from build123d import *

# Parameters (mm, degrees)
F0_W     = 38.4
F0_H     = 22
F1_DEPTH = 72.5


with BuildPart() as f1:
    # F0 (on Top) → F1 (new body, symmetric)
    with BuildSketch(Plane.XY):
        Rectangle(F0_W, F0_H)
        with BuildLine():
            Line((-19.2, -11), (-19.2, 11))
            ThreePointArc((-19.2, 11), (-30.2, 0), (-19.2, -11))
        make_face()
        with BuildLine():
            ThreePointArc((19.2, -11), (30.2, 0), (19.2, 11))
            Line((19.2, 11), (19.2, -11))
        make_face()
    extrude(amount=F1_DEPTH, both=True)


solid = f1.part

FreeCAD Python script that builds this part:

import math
import FreeCAD as App
import Part
import Sketcher
from FreeCAD import Vector

doc = App.newDocument("Part")
body = doc.addObject("PartDesign::Body", "Body")

# Sketch on XY plane
sketch1 = body.newObject("Sketcher::SketchObject", "Sketch")
sketch1.AttachmentSupport = (doc.getObject("XY_Plane"), [""])
sketch1.MapMode = "FlatFace"
sketch1.addGeometry(Part.LineSegment(Vector(-19.2, -11, 0), Vector(19.2, -11, 0)), False)
sketch1.addGeometry(Part.ArcOfCircle(Part.Circle(Vector(19.2, 0, 0), Vector(0, 0, 1), 11), math.radians(-90), math.radians(90)), False)
sketch1.addGeometry(Part.LineSegment(Vector(19.2, 11, 0), Vector(-19.2, 11, 0)), False)
sketch1.addGeometry(Part.ArcOfCircle(Part.Circle(Vector(-19.2, 0, 0), Vector(0, 0, 1), 11), math.radians(90), math.radians(270)), False)
sketch1.addConstraint(Sketcher.Constraint("Tangent", 0, 2, 1, 1))
sketch1.addConstraint(Sketcher.Constraint("Tangent", 1, 2, 2, 1))
sketch1.addConstraint(Sketcher.Constraint("Tangent", 2, 2, 3, 1))
sketch1.addConstraint(Sketcher.Constraint("Tangent", 3, 2, 0, 1))
sketch1.addConstraint(Sketcher.Constraint("Horizontal", 0))
sketch1.addConstraint(Sketcher.Constraint("Horizontal", 2))
sketch1.addConstraint(Sketcher.Constraint("Symmetric", 1, 3, 3, 3, -1, 1))
sketch1.addConstraint(Sketcher.Constraint("Radius", 1, 11.0))
sketch1.addConstraint(Sketcher.Constraint("DistanceX", 0, 1, 0, 2, 38.4))
pad1 = body.newObject("PartDesign::Pad", "Pad")
pad1.Profile = sketch1
pad1.Length = 145
pad1.Midplane = True

doc.recompute()
